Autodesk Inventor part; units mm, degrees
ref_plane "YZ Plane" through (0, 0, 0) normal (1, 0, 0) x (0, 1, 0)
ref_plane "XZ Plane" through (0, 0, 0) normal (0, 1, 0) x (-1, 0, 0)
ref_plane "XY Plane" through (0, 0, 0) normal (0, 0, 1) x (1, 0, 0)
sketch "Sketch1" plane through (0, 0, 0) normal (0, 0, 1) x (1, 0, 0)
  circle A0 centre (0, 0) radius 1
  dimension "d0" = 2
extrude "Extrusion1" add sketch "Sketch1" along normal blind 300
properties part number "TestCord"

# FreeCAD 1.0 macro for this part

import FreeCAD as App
import Part
import Sketcher
from FreeCAD import Vector

doc = App.newDocument("Part")
body = doc.addObject("PartDesign::Body", "Body")

# Sketch on XY plane
sketch1 = body.newObject("Sketcher::SketchObject", "Sketch")
sketch1.AttachmentSupport = (doc.getObject("XY_Plane"), [""])
sketch1.MapMode = "FlatFace"
sketch1.addGeometry(Part.Circle(Vector(0, 0, 0), Vector(0, 0, 1), 1), False)
sketch1.addConstraint(Sketcher.Constraint("Coincident", 0, 3, -1, 1))
sketch1.addConstraint(Sketcher.Constraint("Diameter", 0, 2.0))
pad1 = body.newObject("PartDesign::Pad", "Pad")
pad1.Profile = sketch1
pad1.Length = 300

doc.recompute()
